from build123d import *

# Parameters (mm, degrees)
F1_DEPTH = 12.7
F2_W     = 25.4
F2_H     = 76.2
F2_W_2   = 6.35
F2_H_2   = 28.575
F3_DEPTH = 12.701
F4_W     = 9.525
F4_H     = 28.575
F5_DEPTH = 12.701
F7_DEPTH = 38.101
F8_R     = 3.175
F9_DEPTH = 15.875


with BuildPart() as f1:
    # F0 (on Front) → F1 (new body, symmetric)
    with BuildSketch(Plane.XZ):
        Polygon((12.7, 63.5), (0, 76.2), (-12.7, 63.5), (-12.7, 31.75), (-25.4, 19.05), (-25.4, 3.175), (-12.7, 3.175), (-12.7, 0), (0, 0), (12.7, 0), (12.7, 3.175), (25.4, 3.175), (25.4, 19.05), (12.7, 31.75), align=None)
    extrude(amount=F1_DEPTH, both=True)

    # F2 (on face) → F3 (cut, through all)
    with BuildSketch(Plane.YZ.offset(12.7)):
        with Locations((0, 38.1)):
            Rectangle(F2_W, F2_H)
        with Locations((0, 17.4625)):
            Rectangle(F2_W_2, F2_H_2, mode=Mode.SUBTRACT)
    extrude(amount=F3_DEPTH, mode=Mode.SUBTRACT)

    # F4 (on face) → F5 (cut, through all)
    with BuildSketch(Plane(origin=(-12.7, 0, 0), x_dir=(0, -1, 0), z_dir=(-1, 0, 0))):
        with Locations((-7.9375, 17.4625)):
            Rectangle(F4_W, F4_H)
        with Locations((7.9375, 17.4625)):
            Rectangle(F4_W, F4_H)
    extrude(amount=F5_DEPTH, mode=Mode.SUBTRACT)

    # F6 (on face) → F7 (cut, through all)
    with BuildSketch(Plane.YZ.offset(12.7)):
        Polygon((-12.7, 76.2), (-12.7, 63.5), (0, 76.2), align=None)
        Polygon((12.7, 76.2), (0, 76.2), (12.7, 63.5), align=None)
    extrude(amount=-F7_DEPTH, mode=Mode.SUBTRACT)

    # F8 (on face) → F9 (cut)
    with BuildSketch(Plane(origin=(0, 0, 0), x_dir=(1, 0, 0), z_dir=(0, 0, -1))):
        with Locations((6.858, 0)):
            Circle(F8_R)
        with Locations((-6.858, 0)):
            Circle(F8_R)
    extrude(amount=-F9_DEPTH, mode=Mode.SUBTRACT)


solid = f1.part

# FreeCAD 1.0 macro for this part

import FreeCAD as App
import Part
import Sketcher

V = App.Vector
Q = App.Units.Quantity

doc = App.newDocument("Part")
body = doc.addObject("PartDesign::Body", "Body")

sketch1 = body.newObject("Sketcher::SketchObject", "Sketch")
sketch1.AttachmentSupport = (doc.getObject("XZ_Plane"), [""])
sketch1.MapMode = "FlatFace"
sketch1.addGeometry([
    Part.LineSegment(V(12.7, 63.5, 0), V(0, 76.2, 0)),
    Part.LineSegment(V(0, 76.2, 0), V(-12.7, 63.5, 0)),
    Part.LineSegment(V(-12.7, 63.5, 0), V(-12.7, 31.75, 0)),
    Part.LineSegment(V(-12.7, 31.75, 0), V(-25.4, 19.05, 0)),
    Part.LineSegment(V(-25.4, 19.05, 0), V(-25.4, 3.175, 0)),
    Part.LineSegment(V(-25.4, 3.175, 0), V(-12.7, 3.175, 0)),
    Part.LineSegment(V(-12.7, 3.175, 0), V(-12.7, 0, 0)),
    Part.LineSegment(V(-12.7, 0, 0), V(12.7, 0, 0)),
    Part.LineSegment(V(12.7, 0, 0), V(12.7, 3.175, 0)),
    Part.LineSegment(V(12.7, 3.175, 0), V(25.4, 3.175, 0)),
    Part.LineSegment(V(25.4, 3.175, 0), V(25.4, 19.05, 0)),
    Part.LineSegment(V(25.4, 19.05, 0), V(12.7, 31.75, 0)),
    Part.LineSegment(V(12.7, 31.75, 0), V(12.7, 63.5, 0)),
], False)
sketch1.addConstraint([
    Sketcher.Constraint("Coincident", 0, 2, 1, 1),
    Sketcher.Constraint("Coincident", 1, 2, 2, 1),
    Sketcher.Constraint("Coincident", 2, 2, 3, 1),
    Sketcher.Constraint("Coincident", 3, 2, 4, 1),
    Sketcher.Constraint("Coincident", 4, 2, 5, 1),
    Sketcher.Constraint("Coincident", 5, 2, 6, 1),
    Sketcher.Constraint("Coincident", 6, 2, 7, 1),
    Sketcher.Constraint("Coincident", 7, 2, 8, 1),
    Sketcher.Constraint("Coincident", 8, 2, 9, 1),
    Sketcher.Constraint("Coincident", 9, 2, 10, 1),
    Sketcher.Constraint("Coincident", 10, 2, 11, 1),
    Sketcher.Constraint("Coincident", 11, 2, 12, 1),
    Sketcher.Constraint("Coincident", 12, 2, 0, 1),
    Sketcher.Constraint("Vertical", 2),
    Sketcher.Constraint("Vertical", 4),
    Sketcher.Constraint("Horizontal", 5),
    Sketcher.Constraint("Vertical", 6),
    Sketcher.Constraint("Horizontal", 7),
    Sketcher.Constraint("Vertical", 8),
    Sketcher.Constraint("Horizontal", 9),
    Sketcher.Constraint("Vertical", 10),
    Sketcher.Constraint("Vertical", 12),
    Sketcher.Constraint("Symmetric", 6, 2, 7, 2, -1, 1),
    Sketcher.Constraint("Symmetric", 4, 2, 9, 2, -2),
    Sketcher.Constraint("Symmetric", 2, 2, 11, 2, -2),
    Sketcher.Constraint("PointOnObject", 0, 2, -2),
    Sketcher.Constraint("Perpendicular", 0, 1),
    Sketcher.Constraint("Parallel", 1, 3),
    Sketcher.Constraint("Perpendicular", 3, 11),
    Sketcher.Constraint("Horizontal", 3, 2, 10, 2),
    Sketcher.Constraint("Vertical", 2, 2, 5, 2),
    Sketcher.Constraint("Equal", 1, 3),
    Sketcher.Constraint("DistanceX", 7, 1, 7, 2, Q("1 in")),
    Sketcher.Constraint("DistanceY", -1, 1, 0, 2, Q("3 in")),
    Sketcher.Constraint("DistanceY", 2, 2, 2, 1, Q("1.25 in")),
    Sketcher.Constraint("DistanceY", 4, 2, 4, 1, Q("0.625 in")),
])
pad1 = body.newObject("PartDesign::Pad", "Pad")
pad1.Profile = sketch1
pad1.Length = Q("1 in")
pad1.Midplane = True

sketch2 = body.newObject("Sketcher::SketchObject", "Sketch001")
sketch2.AttachmentSupport = (doc.getObject("YZ_Plane"), [""])
sketch2.MapMode = "FlatFace"
sketch2.AttachmentOffset = App.Placement(V(0, 0, 0.5 * 25.4), App.Rotation())
sketch2.addGeometry([
    Part.LineSegment(V(-12.7, 76.2, 0), V(-12.7, 0, 0)),
    Part.LineSegment(V(-12.7, 0, 0), V(12.7, 0, 0)),
    Part.LineSegment(V(12.7, 0, 0), V(12.7, 76.2, 0)),
    Part.LineSegment(V(12.7, 76.2, 0), V(-12.7, 76.2, 0)),
    Part.LineSegment(V(3.175, 3.175, 0), V(-3.175, 3.175, 0)),
    Part.LineSegment(V(-3.175, 3.175, 0), V(-3.175, 31.75, 0)),
    Part.LineSegment(V(-3.175, 31.75, 0), V(3.175, 31.75, 0)),
    Part.LineSegment(V(3.175, 31.75, 0), V(3.175, 3.175, 0)),
], False)
sketch2.addConstraint([
    Sketcher.Constraint("Coincident", 0, 2, 1, 1),
    Sketcher.Constraint("Coincident", 1, 2, 2, 1),
    Sketcher.Constraint("Coincident", 2, 2, 3, 1),
    Sketcher.Constraint("Coincident", 3, 2, 0, 1),
    Sketcher.Constraint("Coincident", 4, 2, 5, 1),
    Sketcher.Constraint("Coincident", 5, 2, 6, 1),
    Sketcher.Constraint("Coincident", 6, 2, 7, 1),
    Sketcher.Constraint("Coincident", 7, 2, 4, 1),
    Sketcher.Constraint("Vertical", 0),
    Sketcher.Constraint("Horizontal", 1),
    Sketcher.Constraint("Vertical", 2),
    Sketcher.Constraint("Horizontal", 3),
    Sketcher.Constraint("Horizontal", 4),
    Sketcher.Constraint("Vertical", 5),
    Sketcher.Constraint("Horizontal", 6),
    Sketcher.Constraint("Vertical", 7),
    Sketcher.Constraint("Symmetric", 0, 2, 1, 2, -1, 1),
    Sketcher.Constraint("DistanceX", 1, 1, 1, 2, Q("1 in")),
    Sketcher.Constraint("DistanceY", 0, 2, 0, 1, Q("3 in")),
    Sketcher.Constraint("DistanceX", 4, 2, 4, 1, Q("0.25 in")),
    Sketcher.Constraint("DistanceY", 5, 1, 5, 2, Q("1.125 in")),
    Sketcher.Constraint("DistanceY", -1, 1, 5, 2, Q("1.25 in")),
    Sketcher.Constraint("DistanceX", 4, 2, -1, 1, Q("0.125 in")),
])
pocket1 = body.newObject("PartDesign::Pocket", "Pocket")
pocket1.Profile = sketch2
pocket1.Type = "ThroughAll"
pocket1.Reversed = True

sketch3 = body.newObject("Sketcher::SketchObject", "Sketch002")
sketch3.AttachmentSupport = (doc.getObject("YZ_Plane"), [""])
sketch3.MapMode = "FlatFace"
sketch3.AttachmentOffset = App.Placement(V(0, 0, -0.5 * 25.4), App.Rotation())
sketch3.addGeometry([
    Part.LineSegment(V(12.7, 31.75, 0), V(12.7, 3.175, 0)),
    Part.LineSegment(V(12.7, 3.175, 0), V(3.175, 3.175, 0)),
    Part.LineSegment(V(3.175, 3.175, 0), V(3.175, 31.75, 0)),
    Part.LineSegment(V(3.175, 31.75, 0), V(12.7, 31.75, 0)),
    Part.LineSegment(V(-3.175, 31.75, 0), V(-3.175, 3.175, 0)),
    Part.LineSegment(V(-3.175, 3.175, 0), V(-12.7, 3.175, 0)),
    Part.LineSegment(V(-12.7, 3.175, 0), V(-12.7, 31.75, 0)),
    Part.LineSegment(V(-12.7, 31.75, 0), V(-3.175, 31.75, 0)),
], False)
sketch3.addConstraint([
    Sketcher.Constraint("Coincident", 0, 2, 1, 1),
    Sketcher.Constraint("Coincident", 1, 2, 2, 1),
    Sketcher.Constraint("Coincident", 2, 2, 3, 1),
    Sketcher.Constraint("Coincident", 3, 2, 0, 1),
    Sketcher.Constraint("Coincident", 4, 2, 5, 1),
    Sketcher.Constraint("Coincident", 5, 2, 6, 1),
    Sketcher.Constraint("Coincident", 6, 2, 7, 1),
    Sketcher.Constraint("Coincident", 7, 2, 4, 1),
    Sketcher.Constraint("Vertical", 0),
    Sketcher.Constraint("Horizontal", 1),
    Sketcher.Constraint("Vertical", 2),
    Sketcher.Constraint("Horizontal", 3),
    Sketcher.Constraint("Vertical", 4),
    Sketcher.Constraint("Horizontal", 5),
    Sketcher.Constraint("Vertical", 6),
    Sketcher.Constraint("Horizontal", 7),
    Sketcher.Constraint("Symmetric", 1, 2, 4, 2, -2),
    Sketcher.Constraint("Symmetric", 3, 2, 6, 2, -2),
    Sketcher.Constraint("DistanceX", 5, 2, 0, 2, Q("1 in")),
    Sketcher.Constraint("DistanceX", 1, 2, 1, 1, Q("0.375 in")),
    Sketcher.Constraint("DistanceY", 0, 2, 0, 1, Q("1.125 in")),
    Sketcher.Constraint("DistanceY", -1, 1, 2, 2, Q("1.25 in")),
])
pocket2 = body.newObject("PartDesign::Pocket", "Pocket001")
pocket2.Profile = sketch3
pocket2.Type = "ThroughAll"

sketch4 = body.newObject("Sketcher::SketchObject", "Sketch003")
sketch4.AttachmentSupport = (doc.getObject("YZ_Plane"), [""])
sketch4.MapMode = "FlatFace"
sketch4.AttachmentOffset = App.Placement(V(0, 0, 0.5 * 25.4), App.Rotation())
sketch4.addGeometry([
    Part.LineSegment(V(-12.7, 76.2, 0), V(-12.7, 63.5, 0)),
    Part.LineSegment(V(-12.7, 63.5, 0), V(0, 76.2, 0)),
    Part.LineSegment(V(0, 76.2, 0), V(-12.7, 76.2, 0)),
    Part.LineSegment(V(12.7, 76.2, 0), V(0, 76.2, 0)),
    Part.LineSegment(V(0, 76.2, 0), V(12.7, 63.5, 0)),
    Part.LineSegment(V(12.7, 63.5, 0), V(12.7, 76.2, 0)),
], False)
sketch4.addConstraint([
    Sketcher.Constraint("Coincident", 0, 2, 1, 1),
    Sketcher.Constraint("Coincident", 1, 2, 2, 1),
    Sketcher.Constraint("Coincident", 2, 2, 0, 1),
    Sketcher.Constraint("Coincident", 3, 2, 4, 1),
    Sketcher.Constraint("Coincident", 4, 2, 5, 1),
    Sketcher.Constraint("Coincident", 5, 2, 3, 1),
    Sketcher.Constraint("Vertical", 0),
    Sketcher.Constraint("Horizontal", 2),
    Sketcher.Constraint("Horizontal", 3),
    Sketcher.Constraint("Vertical", 5),
    Sketcher.Constraint("Coincident", 3, 2, 1, 2),
    Sketcher.Constraint("Symmetric", 0, 2, 4, 2, -2),
    Sketcher.Constraint("PointOnObject", 1, 2, -2),
    Sketcher.Constraint("Perpendicular", 1, 4),
    Sketcher.Constraint("DistanceX", 2, 2, 2, 1, Q("0.5 in")),
    Sketcher.Constraint("DistanceY", -1, 1, 1, 2, Q("3 in")),
])
pocket3 = body.newObject("PartDesign::Pocket", "Pocket002")
pocket3.Profile = sketch4
pocket3.Type = "ThroughAll"

sketch5 = body.newObject("Sketcher::SketchObject", "Sketch004")
sketch5.AttachmentSupport = (doc.getObject("XY_Plane"), [""])
sketch5.MapMode = "FlatFace"
sketch5.addGeometry([
    Part.Circle(V(6.858, 0, 0), V(0, 0, 1), 3.175),
    Part.Circle(V(-6.858, 0, 0), V(0, 0, 1), 3.175),
], False)
sketch5.addConstraint([
    Sketcher.Constraint("Equal", 0, 1),
    Sketcher.Constraint("Symmetric", 0, 3, 1, 3, -1, 1),
    Sketcher.Constraint("PointOnObject", 0, 3, -1),
    Sketcher.Constraint("Diameter", 0, Q("0.25 in")),
    Sketcher.Constraint("DistanceX", -1, 1, 0, 3, Q("0.27 in")),
])
pocket4 = body.newObject("PartDesign::Pocket", "Pocket003")
pocket4.Profile = sketch5
pocket4.Length = Q("0.625 in")
pocket4.Reversed = True

doc.recompute()
